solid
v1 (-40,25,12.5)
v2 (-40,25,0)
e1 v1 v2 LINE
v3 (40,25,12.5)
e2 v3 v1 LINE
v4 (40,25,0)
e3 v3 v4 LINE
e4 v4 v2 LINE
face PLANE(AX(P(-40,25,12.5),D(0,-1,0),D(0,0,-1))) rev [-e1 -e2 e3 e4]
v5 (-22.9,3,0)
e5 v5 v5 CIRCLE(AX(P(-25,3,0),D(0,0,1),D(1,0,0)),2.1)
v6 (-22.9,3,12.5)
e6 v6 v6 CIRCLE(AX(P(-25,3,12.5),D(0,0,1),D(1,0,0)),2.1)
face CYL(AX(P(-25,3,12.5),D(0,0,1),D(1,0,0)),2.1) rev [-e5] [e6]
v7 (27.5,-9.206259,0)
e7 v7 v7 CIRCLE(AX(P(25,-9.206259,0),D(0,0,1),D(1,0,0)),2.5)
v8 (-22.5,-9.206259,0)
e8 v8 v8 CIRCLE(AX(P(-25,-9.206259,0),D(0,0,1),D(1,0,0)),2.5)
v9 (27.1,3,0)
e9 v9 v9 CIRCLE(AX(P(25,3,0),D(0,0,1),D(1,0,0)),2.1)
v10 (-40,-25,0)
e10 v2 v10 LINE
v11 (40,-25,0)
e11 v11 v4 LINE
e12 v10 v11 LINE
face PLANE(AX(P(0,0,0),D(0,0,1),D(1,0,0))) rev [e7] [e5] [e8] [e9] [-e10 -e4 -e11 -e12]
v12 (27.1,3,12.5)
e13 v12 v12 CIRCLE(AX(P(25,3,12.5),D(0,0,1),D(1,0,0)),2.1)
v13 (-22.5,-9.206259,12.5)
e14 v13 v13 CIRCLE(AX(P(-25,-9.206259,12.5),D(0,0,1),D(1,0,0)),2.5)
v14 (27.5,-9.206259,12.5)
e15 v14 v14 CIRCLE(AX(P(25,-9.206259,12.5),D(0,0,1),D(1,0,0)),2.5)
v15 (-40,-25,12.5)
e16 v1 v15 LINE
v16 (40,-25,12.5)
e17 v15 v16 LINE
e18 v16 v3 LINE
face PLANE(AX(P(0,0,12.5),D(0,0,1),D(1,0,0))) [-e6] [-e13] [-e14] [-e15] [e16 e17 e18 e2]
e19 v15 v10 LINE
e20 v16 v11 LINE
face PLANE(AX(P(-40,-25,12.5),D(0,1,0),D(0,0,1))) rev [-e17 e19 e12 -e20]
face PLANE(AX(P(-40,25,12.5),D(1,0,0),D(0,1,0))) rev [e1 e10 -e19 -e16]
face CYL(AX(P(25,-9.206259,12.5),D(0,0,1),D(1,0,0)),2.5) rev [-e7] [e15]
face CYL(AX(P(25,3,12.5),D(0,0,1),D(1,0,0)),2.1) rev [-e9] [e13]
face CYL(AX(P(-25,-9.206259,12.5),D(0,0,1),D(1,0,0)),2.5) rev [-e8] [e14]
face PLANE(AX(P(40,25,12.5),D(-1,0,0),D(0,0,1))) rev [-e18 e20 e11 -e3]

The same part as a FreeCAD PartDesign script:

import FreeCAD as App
import Part
import Sketcher
from FreeCAD import Vector

doc = App.newDocument("Part")
body = doc.addObject("PartDesign::Body", "Body")

# Sketch on XY plane
sketch1 = doc.addObject("Sketcher::SketchObject", "Sketch")
body.addObject(sketch1)
sketch1.AttachmentSupport = (doc.XY_Plane, [""])
sketch1.MapMode = "FlatFace"
sketch1.addGeometry([
    Part.LineSegment(Vector(-40, 25, 0), Vector(-40, -25, 0)),
    Part.LineSegment(Vector(-40, -25, 0), Vector(40, -25, 0)),
    Part.LineSegment(Vector(40, -25, 0), Vector(40, 25, 0)),
    Part.LineSegment(Vector(40, 25, 0), Vector(-40, 25, 0)),
], False)
sketch1.addConstraint([
    Sketcher.Constraint("Coincident", 0, 2, 1, 1),
    Sketcher.Constraint("Coincident", 1, 2, 2, 1),
    Sketcher.Constraint("Coincident", 2, 2, 3, 1),
    Sketcher.Constraint("Coincident", 3, 2, 0, 1),
    Sketcher.Constraint("Vertical", 0),
    Sketcher.Constraint("Horizontal", 1),
    Sketcher.Constraint("Vertical", 2),
    Sketcher.Constraint("Horizontal", 3),
    Sketcher.Constraint("Symmetric", 0, 2, 2, 2, -1, 1),
    Sketcher.Constraint("DistanceX", 1, 1, 1, 2, 80.0),
    Sketcher.Constraint("DistanceY", 0, 2, 0, 1, 50.0),
])
pad1 = doc.addObject("PartDesign::Pad", "Pad")
body.addObject(pad1)
pad1.Profile = sketch1
pad1.Length = 12.5

# Sketch on XY plane
sketch2 = doc.addObject("Sketcher::SketchObject", "Sketch001")
body.addObject(sketch2)
sketch2.AttachmentSupport = (doc.XY_Plane, [""])
sketch2.MapMode = "FlatFace"
sketch2.AttachmentOffset = App.Placement(Vector(0, 0, 12.5), App.Rotation())
sketch2.addGeometry([
    Part.Circle(Vector(-25, -9.206259, 0), Vector(0, 0, 1), 2.5),
    Part.Circle(Vector(25, -9.206259, 0), Vector(0, 0, 1), 2.5),
], False)
sketch2.addConstraint([
    Sketcher.Constraint("Equal", 0, 1),
    Sketcher.Constraint("Symmetric", 0, 3, 1, 3, -2),
    Sketcher.Constraint("Diameter", 0, 5.0),
    Sketcher.Constraint("DistanceX", 0, 3, -1, 1, 25.0),
    Sketcher.Constraint("DistanceY", 0, 3, -1, 1, 9.206259),
])
doc.recompute()
hole = doc.addObject("PartDesign::Hole", "Hole")
body.addObject(hole)
hole.Profile = sketch2
hole.ThreadType = "None"
hole.Diameter = 5
hole.DepthType = "ThroughAll"

# Sketch on XY plane
sketch3 = doc.addObject("Sketcher::SketchObject", "Sketch002")
body.addObject(sketch3)
sketch3.AttachmentSupport = (doc.XY_Plane, [""])
sketch3.MapMode = "FlatFace"
sketch3.AttachmentOffset = App.Placement(Vector(0, 0, 12.5), App.Rotation())
sketch3.addGeometry([
    Part.Circle(Vector(-25, 3, 0), Vector(0, 0, 1), 2.1),
    Part.Circle(Vector(25, 3, 0), Vector(0, 0, 1), 2.1),
], False)
sketch3.addConstraint([
    Sketcher.Constraint("Equal", 0, 1),
    Sketcher.Constraint("Symmetric", 0, 3, 1, 3, -2),
    Sketcher.Constraint("Diameter", 0, 4.2),
    Sketcher.Constraint("DistanceX", 0, 3, -1, 1, 25.0),
    Sketcher.Constraint("DistanceY", -1, 1, 0, 3, 3.0),
])
doc.recompute()
hole2 = doc.addObject("PartDesign::Hole", "Hole001")
body.addObject(hole2)
hole2.Profile = sketch3
hole2.ThreadType = "None"
hole2.Diameter = 4.2
hole2.DepthType = "Dimension"
hole2.Depth = 12.5
hole2.DrillPoint = "Flat"

doc.recompute()
